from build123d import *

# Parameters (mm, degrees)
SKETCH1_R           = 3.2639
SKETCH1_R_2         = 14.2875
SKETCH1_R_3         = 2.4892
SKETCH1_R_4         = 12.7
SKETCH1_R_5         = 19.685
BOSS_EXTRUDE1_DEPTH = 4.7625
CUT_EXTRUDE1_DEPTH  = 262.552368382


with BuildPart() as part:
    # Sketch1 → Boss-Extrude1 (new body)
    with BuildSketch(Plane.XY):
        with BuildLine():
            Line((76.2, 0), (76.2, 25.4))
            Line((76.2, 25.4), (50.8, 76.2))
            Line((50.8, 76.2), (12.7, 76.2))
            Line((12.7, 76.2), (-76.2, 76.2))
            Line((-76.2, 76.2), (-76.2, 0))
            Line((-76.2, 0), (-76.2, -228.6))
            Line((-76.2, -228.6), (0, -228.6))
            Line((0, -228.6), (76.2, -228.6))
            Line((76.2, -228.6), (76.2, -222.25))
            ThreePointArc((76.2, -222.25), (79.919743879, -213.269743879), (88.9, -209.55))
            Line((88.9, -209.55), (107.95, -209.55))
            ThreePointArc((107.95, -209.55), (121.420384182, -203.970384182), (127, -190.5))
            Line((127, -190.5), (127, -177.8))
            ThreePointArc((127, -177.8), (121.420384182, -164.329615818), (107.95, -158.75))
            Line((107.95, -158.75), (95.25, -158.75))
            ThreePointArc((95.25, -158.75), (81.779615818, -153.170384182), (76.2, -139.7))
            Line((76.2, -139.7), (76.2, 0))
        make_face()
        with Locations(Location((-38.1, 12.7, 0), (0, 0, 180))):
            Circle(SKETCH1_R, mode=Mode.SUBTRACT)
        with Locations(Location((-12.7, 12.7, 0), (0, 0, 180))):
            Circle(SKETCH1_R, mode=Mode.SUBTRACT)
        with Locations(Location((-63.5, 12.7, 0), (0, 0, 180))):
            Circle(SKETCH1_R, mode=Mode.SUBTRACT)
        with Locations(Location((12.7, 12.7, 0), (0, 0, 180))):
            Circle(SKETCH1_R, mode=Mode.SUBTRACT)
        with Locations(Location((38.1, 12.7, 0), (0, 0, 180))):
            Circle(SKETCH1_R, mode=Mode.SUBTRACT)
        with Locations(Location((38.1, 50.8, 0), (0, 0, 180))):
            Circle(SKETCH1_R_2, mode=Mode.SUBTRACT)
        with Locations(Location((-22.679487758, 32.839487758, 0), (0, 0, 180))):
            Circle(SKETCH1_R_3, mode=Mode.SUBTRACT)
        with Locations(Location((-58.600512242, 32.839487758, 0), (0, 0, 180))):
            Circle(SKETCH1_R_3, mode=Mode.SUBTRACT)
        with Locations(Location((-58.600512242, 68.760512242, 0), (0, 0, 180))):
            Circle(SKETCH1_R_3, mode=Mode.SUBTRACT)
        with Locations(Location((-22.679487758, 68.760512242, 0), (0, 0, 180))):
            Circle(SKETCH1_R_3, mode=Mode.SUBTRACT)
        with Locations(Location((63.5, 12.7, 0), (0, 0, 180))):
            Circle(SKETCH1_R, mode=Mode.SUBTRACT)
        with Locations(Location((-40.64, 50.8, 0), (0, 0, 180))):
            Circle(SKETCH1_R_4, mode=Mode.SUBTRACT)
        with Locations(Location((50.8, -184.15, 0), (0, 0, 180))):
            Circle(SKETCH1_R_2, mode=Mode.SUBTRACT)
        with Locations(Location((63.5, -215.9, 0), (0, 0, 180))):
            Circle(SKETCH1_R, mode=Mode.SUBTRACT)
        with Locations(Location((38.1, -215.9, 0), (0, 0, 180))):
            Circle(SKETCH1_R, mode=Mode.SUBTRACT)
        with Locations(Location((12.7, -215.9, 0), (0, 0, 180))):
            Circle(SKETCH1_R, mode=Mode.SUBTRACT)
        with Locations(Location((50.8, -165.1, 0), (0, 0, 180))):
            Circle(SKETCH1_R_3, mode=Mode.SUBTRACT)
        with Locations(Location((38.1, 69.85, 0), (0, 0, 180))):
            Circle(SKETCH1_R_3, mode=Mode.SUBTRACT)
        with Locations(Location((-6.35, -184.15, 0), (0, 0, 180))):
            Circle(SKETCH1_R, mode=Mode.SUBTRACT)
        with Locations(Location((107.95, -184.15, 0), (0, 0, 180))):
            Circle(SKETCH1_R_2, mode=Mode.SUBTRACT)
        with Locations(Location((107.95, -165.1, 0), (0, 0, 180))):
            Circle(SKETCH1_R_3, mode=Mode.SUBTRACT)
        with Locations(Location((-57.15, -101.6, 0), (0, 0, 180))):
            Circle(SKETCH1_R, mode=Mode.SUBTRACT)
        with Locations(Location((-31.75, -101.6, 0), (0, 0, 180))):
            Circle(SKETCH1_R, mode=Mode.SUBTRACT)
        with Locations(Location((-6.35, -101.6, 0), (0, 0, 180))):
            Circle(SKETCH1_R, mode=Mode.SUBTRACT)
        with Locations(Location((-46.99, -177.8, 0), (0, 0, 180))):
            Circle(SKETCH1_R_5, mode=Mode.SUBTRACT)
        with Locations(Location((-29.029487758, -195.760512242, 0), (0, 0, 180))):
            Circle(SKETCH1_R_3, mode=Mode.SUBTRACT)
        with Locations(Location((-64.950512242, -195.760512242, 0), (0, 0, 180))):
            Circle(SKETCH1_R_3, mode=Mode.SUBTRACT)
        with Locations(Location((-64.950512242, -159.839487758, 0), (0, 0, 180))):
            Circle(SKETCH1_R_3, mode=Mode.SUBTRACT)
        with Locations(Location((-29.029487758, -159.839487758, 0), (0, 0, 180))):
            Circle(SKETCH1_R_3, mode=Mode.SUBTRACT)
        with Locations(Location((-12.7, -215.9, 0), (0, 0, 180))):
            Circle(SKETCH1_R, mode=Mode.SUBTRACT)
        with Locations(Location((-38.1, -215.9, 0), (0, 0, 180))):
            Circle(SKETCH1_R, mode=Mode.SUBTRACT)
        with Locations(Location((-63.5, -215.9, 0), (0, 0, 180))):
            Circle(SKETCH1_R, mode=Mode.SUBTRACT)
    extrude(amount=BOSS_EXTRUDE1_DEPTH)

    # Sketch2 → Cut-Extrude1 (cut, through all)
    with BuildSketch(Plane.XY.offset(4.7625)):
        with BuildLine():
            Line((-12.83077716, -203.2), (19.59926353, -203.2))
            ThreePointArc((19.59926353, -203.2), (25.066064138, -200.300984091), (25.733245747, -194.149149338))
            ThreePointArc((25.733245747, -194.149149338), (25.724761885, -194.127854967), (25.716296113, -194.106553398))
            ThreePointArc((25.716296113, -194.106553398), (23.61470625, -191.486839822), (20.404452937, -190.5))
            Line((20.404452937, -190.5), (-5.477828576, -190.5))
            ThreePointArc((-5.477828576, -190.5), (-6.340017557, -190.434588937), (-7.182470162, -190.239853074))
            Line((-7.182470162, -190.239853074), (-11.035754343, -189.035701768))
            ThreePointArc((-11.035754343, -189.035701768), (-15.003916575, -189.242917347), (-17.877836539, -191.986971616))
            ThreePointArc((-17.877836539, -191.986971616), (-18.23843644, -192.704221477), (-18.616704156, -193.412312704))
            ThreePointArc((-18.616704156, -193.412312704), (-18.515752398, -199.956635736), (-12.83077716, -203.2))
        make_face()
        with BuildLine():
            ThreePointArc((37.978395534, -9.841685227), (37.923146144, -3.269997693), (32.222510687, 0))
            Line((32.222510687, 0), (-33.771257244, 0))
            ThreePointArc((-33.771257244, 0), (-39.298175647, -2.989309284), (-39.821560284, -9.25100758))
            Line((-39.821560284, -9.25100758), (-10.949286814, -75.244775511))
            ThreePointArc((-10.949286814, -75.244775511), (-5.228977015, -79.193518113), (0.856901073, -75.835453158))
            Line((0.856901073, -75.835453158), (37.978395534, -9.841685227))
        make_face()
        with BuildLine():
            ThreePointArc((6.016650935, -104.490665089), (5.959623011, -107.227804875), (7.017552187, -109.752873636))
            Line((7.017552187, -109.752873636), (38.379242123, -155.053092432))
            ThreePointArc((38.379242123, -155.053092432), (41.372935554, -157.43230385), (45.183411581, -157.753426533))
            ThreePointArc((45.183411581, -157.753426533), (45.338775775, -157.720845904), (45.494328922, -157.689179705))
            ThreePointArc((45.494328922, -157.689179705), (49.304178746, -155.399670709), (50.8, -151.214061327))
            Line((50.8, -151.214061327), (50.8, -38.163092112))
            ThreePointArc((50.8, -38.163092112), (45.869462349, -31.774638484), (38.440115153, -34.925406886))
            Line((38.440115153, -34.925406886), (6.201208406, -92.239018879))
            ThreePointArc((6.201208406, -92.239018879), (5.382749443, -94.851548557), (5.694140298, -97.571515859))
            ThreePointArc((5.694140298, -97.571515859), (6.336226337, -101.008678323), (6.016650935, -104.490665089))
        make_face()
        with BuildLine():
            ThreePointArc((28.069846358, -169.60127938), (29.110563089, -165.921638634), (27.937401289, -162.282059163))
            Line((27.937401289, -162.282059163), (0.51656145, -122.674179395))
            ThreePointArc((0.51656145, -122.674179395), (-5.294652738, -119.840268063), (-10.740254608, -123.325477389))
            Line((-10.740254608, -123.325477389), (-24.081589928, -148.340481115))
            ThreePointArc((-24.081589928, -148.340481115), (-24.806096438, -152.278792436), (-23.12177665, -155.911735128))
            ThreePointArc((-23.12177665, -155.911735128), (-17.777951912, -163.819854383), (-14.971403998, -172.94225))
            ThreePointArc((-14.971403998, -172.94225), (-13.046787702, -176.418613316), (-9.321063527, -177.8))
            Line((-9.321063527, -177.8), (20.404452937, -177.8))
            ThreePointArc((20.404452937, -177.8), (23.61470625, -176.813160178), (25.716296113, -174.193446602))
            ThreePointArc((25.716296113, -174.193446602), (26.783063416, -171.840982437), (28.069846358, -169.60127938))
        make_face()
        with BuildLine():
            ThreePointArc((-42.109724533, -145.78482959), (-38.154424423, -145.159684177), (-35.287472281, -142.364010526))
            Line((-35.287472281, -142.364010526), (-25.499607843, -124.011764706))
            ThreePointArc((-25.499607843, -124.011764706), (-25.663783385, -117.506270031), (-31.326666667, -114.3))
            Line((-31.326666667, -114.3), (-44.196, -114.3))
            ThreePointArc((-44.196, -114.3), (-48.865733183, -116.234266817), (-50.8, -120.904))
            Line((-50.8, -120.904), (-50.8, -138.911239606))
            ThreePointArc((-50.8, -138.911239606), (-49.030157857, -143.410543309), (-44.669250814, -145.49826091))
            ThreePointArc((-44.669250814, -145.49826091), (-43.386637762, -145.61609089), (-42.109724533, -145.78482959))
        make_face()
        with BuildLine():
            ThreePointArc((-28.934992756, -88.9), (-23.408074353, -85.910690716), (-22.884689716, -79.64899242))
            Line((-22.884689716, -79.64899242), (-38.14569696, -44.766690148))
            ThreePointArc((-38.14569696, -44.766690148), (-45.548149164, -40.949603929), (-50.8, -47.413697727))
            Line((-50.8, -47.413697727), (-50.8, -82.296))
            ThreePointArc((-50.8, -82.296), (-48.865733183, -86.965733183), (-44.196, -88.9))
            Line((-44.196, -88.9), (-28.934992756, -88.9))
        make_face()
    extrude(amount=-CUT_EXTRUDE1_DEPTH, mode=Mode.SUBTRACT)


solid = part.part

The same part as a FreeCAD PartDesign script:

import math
import FreeCAD as App
import Part
import Sketcher
from FreeCAD import Vector
Q = App.Units.Quantity

doc = App.newDocument("Part")
params = doc.addObject("Spreadsheet::Sheet", "Params")
for row, (alias, value) in enumerate([
    ("sketch1_diameter", "1 in"),
    ("sketch1_diameter2", "1.55 in"),
    ("sketch1_width", "5 in"),
    ("sketch1_width2", "6 in"),
    ("sketch1_height", "12 in"),
    ("pad1_length", "0.1875 in"),
    ("sketch2_radius", "0.5 in"),
    ("sketch2_radius2", "0.26 in"),
    ("sketch2_radius3", "0.225 in"),
    ("sketch2_radius4", "1.2750001 in"),
    ("sketch2_radius5", "1.0625 in"),
], start=1):
    params.set(f"A{row}", alias)
    params.set(f"B{row}", "=" + value)
    params.setAlias(f"B{row}", alias)

body = doc.addObject("PartDesign::Body", "Body")

sketch1 = body.newObject("Sketcher::SketchObject", "Sketch")
sketch1.AttachmentSupport = (doc.getObject("XY_Plane"), [""])
sketch1.MapMode = "FlatFace"
sketch1.addGeometry([
    Part.LineSegment(Vector(76.2, 25.4, 0), Vector(50.8, 76.2, 0)),
    Part.LineSegment(Vector(50.8, 76.2, 0), Vector(-76.2, 76.2, 0)),
    Part.LineSegment(Vector(-76.2, 76.2, 0), Vector(-76.2, -228.6, 0)),
    Part.LineSegment(Vector(-76.2, -228.6, 0), Vector(76.2, -228.6, 0)),
    Part.LineSegment(Vector(76.2, -228.6, 0), Vector(76.2, -222.25, 0)),
    Part.ArcOfCircle(Part.Circle(Vector(88.9, -222.25, 0), Vector(0, 0, 1), 12.7), math.radians(90), math.radians(180)),
    Part.LineSegment(Vector(88.9, -209.55, 0), Vector(107.95, -209.55, 0)),
    Part.ArcOfCircle(Part.Circle(Vector(107.95, -190.5, 0), Vector(0, 0, 1), 19.05), math.radians(-90), math.radians(0)),
    Part.LineSegment(Vector(127, -190.5, 0), Vector(127, -177.8, 0)),
    Part.ArcOfCircle(Part.Circle(Vector(107.95, -177.8, 0), Vector(0, 0, 1), 19.05), math.radians(0), math.radians(90)),
    Part.LineSegment(Vector(107.95, -158.75, 0), Vector(95.25, -158.75, 0)),
    Part.ArcOfCircle(Part.Circle(Vector(95.25, -139.7, 0), Vector(0, 0, 1), 19.05), math.radians(180), math.radians(270)),
    Part.LineSegment(Vector(76.2, -139.7, 0), Vector(76.2, 25.4, 0)),
    Part.Circle(Vector(-63.5, -215.9, 0), Vector(0, 0, 1), 3.2639),
    Part.Circle(Vector(-64.950512, -195.760512, 0), Vector(0, 0, 1), 2.4892),
    Part.Circle(Vector(-38.1, -215.9, 0), Vector(0, 0, 1), 3.2639),
    Part.Circle(Vector(-29.029488, -195.760512, 0), Vector(0, 0, 1), 2.4892),
    Part.Circle(Vector(-46.99, -177.8, 0), Vector(0, 0, 1), 19.685),
    Part.Circle(Vector(-64.950512, -159.839488, 0), Vector(0, 0, 1), 2.4892),
    Part.Circle(Vector(-29.029488, -159.839488, 0), Vector(0, 0, 1), 2.4892),
    Part.Circle(Vector(-12.7, -215.9, 0), Vector(0, 0, 1), 3.2639),
    Part.Circle(Vector(-6.35, -184.15, 0), Vector(0, 0, 1), 3.2639),
    Part.Circle(Vector(12.7, -215.9, 0), Vector(0, 0, 1), 3.2639),
    Part.Circle(Vector(-57.15, -101.6, 0), Vector(0, 0, 1), 3.2639),
    Part.Circle(Vector(-31.75, -101.6, 0), Vector(0, 0, 1), 3.2639),
    Part.Circle(Vector(-6.35, -101.6, 0), Vector(0, 0, 1), 3.2639),
    Part.Circle(Vector(38.1, -215.9, 0), Vector(0, 0, 1), 3.2639),
    Part.Circle(Vector(50.8, -184.15, 0), Vector(0, 0, 1), 14.2875),
    Part.Circle(Vector(63.5, -215.9, 0), Vector(0, 0, 1), 3.2639),
    Part.Circle(Vector(50.8, -165.1, 0), Vector(0, 0, 1), 2.4892),
    Part.Circle(Vector(107.95, -184.15, 0), Vector(0, 0, 1), 14.2875),
    Part.Circle(Vector(107.95, -165.1, 0), Vector(0, 0, 1), 2.4892),
    Part.Circle(Vector(-63.5, 12.7, 0), Vector(0, 0, 1), 3.2639),
    Part.Circle(Vector(-58.600512, 32.839488, 0), Vector(0, 0, 1), 2.4892),
    Part.Circle(Vector(-38.1, 12.7, 0), Vector(0, 0, 1), 3.2639),
    Part.Circle(Vector(-22.679488, 32.839488, 0), Vector(0, 0, 1), 2.4892),
    Part.Circle(Vector(-58.600512, 68.760512, 0), Vector(0, 0, 1), 2.4892),
    Part.Circle(Vector(-40.64, 50.8, 0), Vector(0, 0, 1), 12.7),
    Part.Circle(Vector(-22.679488, 68.760512, 0), Vector(0, 0, 1), 2.4892),
    Part.Circle(Vector(-12.7, 12.7, 0), Vector(0, 0, 1), 3.2639),
    Part.Circle(Vector(12.7, 12.7, 0), Vector(0, 0, 1), 3.2639),
    Part.Circle(Vector(38.1, 12.7, 0), Vector(0, 0, 1), 3.2639),
    Part.Circle(Vector(63.5, 12.7, 0), Vector(0, 0, 1), 3.2639),
    Part.Circle(Vector(38.1, 50.8, 0), Vector(0, 0, 1), 14.2875),
    Part.Circle(Vector(38.1, 69.85, 0), Vector(0, 0, 1), 2.4892),
], False)
sketch1.addConstraint([
    Sketcher.Constraint("Coincident", 0, 2, 1, 1),
    Sketcher.Constraint("Coincident", 1, 2, 2, 1),
    Sketcher.Constraint("Coincident", 2, 2, 3, 1),
    Sketcher.Constraint("Coincident", 3, 2, 4, 1),
    Sketcher.Constraint("Tangent", 4, 2, 5, 2),
    Sketcher.Constraint("Tangent", 5, 1, 6, 1),
    Sketcher.Constraint("Tangent", 6, 2, 7, 1),
    Sketcher.Constraint("Tangent", 7, 2, 8, 1),
    Sketcher.Constraint("Tangent", 8, 2, 9, 1),
    Sketcher.Constraint("Tangent", 9, 2, 10, 1),
    Sketcher.Constraint("Tangent", 10, 2, 11, 2),
    Sketcher.Constraint("Tangent", 11, 1, 12, 1),
    Sketcher.Constraint("Coincident", 12, 2, 0, 1),
    Sketcher.Constraint("Horizontal", 1),
    Sketcher.Constraint("Vertical", 2),
    Sketcher.Constraint("Horizontal", 3),
    Sketcher.Constraint("Vertical", 4),
    Sketcher.Constraint("Horizontal", 6),
    Sketcher.Constraint("Vertical", 8),
    Sketcher.Constraint("Horizontal", 10),
    Sketcher.Constraint("Vertical", 12),
    Sketcher.Constraint("Equal", 7, 9),
    Sketcher.Constraint("Equal", 9, 11),
    Sketcher.Constraint("Equal", 13, 15),
    Sketcher.Constraint("Equal", 14, 16),
    Sketcher.Constraint("Equal", 16, 18),
    Sketcher.Constraint("Equal", 18, 19),
    Sketcher.Constraint("Equal", 15, 20),
    Sketcher.Constraint("Equal", 20, 21),
    Sketcher.Constraint("Equal", 21, 22),
    Sketcher.Constraint("Equal", 22, 23),
    Sketcher.Constraint("Equal", 23, 24),
    Sketcher.Constraint("Equal", 24, 25),
    Sketcher.Constraint("Equal", 25, 26),
    Sketcher.Constraint("Equal", 26, 28),
    Sketcher.Constraint("Equal", 19, 29),
    Sketcher.Constraint("Equal", 27, 30),
    Sketcher.Constraint("Equal", 29, 31),
    Sketcher.Constraint("Equal", 28, 32),
    Sketcher.Constraint("Equal", 31, 33),
    Sketcher.Constraint("Equal", 32, 34),
    Sketcher.Constraint("Equal", 33, 35),
    Sketcher.Constraint("Equal", 35, 36),
    Sketcher.Constraint("Equal", 5, 37),
    Sketcher.Constraint("Equal", 36, 38),
    Sketcher.Constraint("Equal", 34, 39),
    Sketcher.Constraint("Equal", 39, 40),
    Sketcher.Constraint("Equal", 40, 41),
    Sketcher.Constraint("Equal", 41, 42),
    Sketcher.Constraint("Equal", 30, 43),
    Sketcher.Constraint("Equal", 38, 44),
    Sketcher.Constraint("Symmetric", 20, 3, 22, 3, -2),
    Sketcher.Constraint("Symmetric", 15, 3, 26, 3, -2),
    Sketcher.Constraint("Symmetric", 13, 3, 28, 3, -2),
    Sketcher.Constraint("Symmetric", 39, 3, 40, 3, -2),
    Sketcher.Constraint("Symmetric", 34, 3, 41, 3, -2),
    Sketcher.Constraint("Symmetric", 32, 3, 42, 3, -2),
    Sketcher.Constraint("Horizontal", 13, 3, 15, 3),
    Sketcher.Constraint("Horizontal", 14, 3, 16, 3),
    Sketcher.Constraint("Horizontal", 9, 3, 17, 3),
    Sketcher.Constraint("Horizontal", 18, 3, 19, 3),
    Sketcher.Constraint("Horizontal", 15, 3, 20, 3),
    Sketcher.Constraint("Horizontal", 23, 3, 24, 3),
    Sketcher.Constraint("Horizontal", 24, 3, 25, 3),
    Sketcher.Constraint("Horizontal", 21, 3, 27, 3),
    Sketcher.Constraint("Horizontal", 27, 3, 30, 3),
    Sketcher.Constraint("Horizontal", 29, 3, 31, 3),
    Sketcher.Constraint("Horizontal", 32, 3, 34, 3),
    Sketcher.Constraint("Horizontal", 33, 3, 35, 3),
    Sketcher.Constraint("Horizontal", 36, 3, 38, 3),
    Sketcher.Constraint("Horizontal", 34, 3, 39, 3),
    Sketcher.Constraint("Horizontal", 37, 3, 43, 3),
    Sketcher.Constraint("Vertical", 14, 3, 18, 3),
    Sketcher.Constraint("Vertical", 16, 3, 19, 3),
    Sketcher.Constraint("Vertical", 21, 3, 25, 3),
    Sketcher.Constraint("Vertical", 27, 3, 29, 3),
    Sketcher.Constraint("Vertical", 9, 3, 30, 3),
    Sketcher.Constraint("Vertical", 30, 3, 31, 3),
    Sketcher.Constraint("Vertical", 13, 3, 32, 3),
    Sketcher.Constraint("Vertical", 15, 3, 34, 3),
    Sketcher.Constraint("Vertical", 33, 3, 36, 3),
    Sketcher.Constraint("Vertical", 35, 3, 38, 3),
    Sketcher.Constraint("Vertical", 20, 3, 39, 3),
    Sketcher.Constraint("Vertical", 41, 3, 43, 3),
    Sketcher.Constraint("Vertical", 43, 3, 44, 3),
    Sketcher.Constraint("Vertical", 29, 3, 0, 2),
    Sketcher.Constraint("Vertical", 4, 2, 11, 1),
    Sketcher.Constraint("Equal", 10, 8),
    Sketcher.Constraint("Diameter", 37, Q("1 in")),
    Sketcher.Constraint("Diameter", 17, Q("1.55 in")),
    Sketcher.Constraint("DistanceX", 1, 2, 1, 1, Q("5 in")),
    Sketcher.Constraint("DistanceX", 3, 1, 3, 2, Q("6 in")),
    Sketcher.Constraint("DistanceY", 2, 2, 2, 1, Q("12 in")),
    Sketcher.Constraint("Radius", 7, Q("0.75 in")),
    Sketcher.Constraint("Diameter", 13, Q("0.257 in")),
    Sketcher.Constraint("Diameter", 14, Q("0.196 in")),
    Sketcher.Constraint("Diameter", 27, Q("1.125 in")),
    Sketcher.Constraint("DistanceX", 10, 2, 10, 1, Q("0.5 in")),
    Sketcher.Constraint("DistanceY", 12, 1, 12, 2, Q("6.5 in")),
    Sketcher.Constraint("DistanceY", 9, 3, -1, 1, Q("7 in")),
    Sketcher.Constraint("DistanceY", 23, 3, -1, 1, Q("4 in")),
    Sketcher.Constraint("DistanceX", -1, 1, 27, 3, Q("2 in")),
    Sketcher.Constraint("DistanceY", -1, 1, 37, 3, Q("2 in")),
    Sketcher.Constraint("DistanceY", -1, 1, 0, 2, Q("3 in")),
    Sketcher.Constraint("DistanceX", 13, 3, 5, 3, Q("6 in")),
    Sketcher.Constraint("DistanceY", 13, 3, 7, 3, Q("1 in")),
    Sketcher.Constraint("DistanceX", 13, 3, 15, 3, Q("1 in")),
    Sketcher.Constraint("DistanceX", 15, 3, 20, 3, Q("1 in")),
    Sketcher.Constraint("DistanceX", 23, 3, 21, 3, Q("2 in")),
    Sketcher.Constraint("DistanceX", 23, 3, 24, 3, Q("1 in")),
    Sketcher.Constraint("DistanceY", 29, 3, 11, 3, Q("1 in")),
    Sketcher.Constraint("DistanceY", 6, 2, 30, 3, Q("1 in")),
    Sketcher.Constraint("DistanceY", -1, 1, 32, 3, Q("0.5 in")),
    Sketcher.Constraint("DistanceX", 37, 3, -1, 1, Q("1.6 in")),
    Sketcher.Constraint("DistanceX", 17, 3, 21, 3, Q("1.6 in")),
    Sketcher.Constraint("DistanceX", 17, 3, -1, 1, Q("1.85 in")),
    Sketcher.Constraint("DistanceY", -1, 1, 44, 3, Q("2.75 in")),
    Sketcher.Constraint("DistanceX", 18, 3, 33, 3, Q("0.25 in")),
    Sketcher.Constraint("DistanceX", 14, 3, -1, 1, 64.950512),
    Sketcher.Constraint("DistanceY", 14, 3, -1, 1, 195.760512),
    Sketcher.Constraint("DistanceX", 16, 3, -1, 1, 29.029488),
    Sketcher.Constraint("DistanceY", 18, 3, -1, 1, 159.839488),
    Sketcher.Constraint("DistanceY", -1, 1, 33, 3, 32.839488),
    Sketcher.Constraint("DistanceX", 35, 3, -1, 1, 22.679488),
    Sketcher.Constraint("DistanceY", -1, 1, 36, 3, 68.760512),
])
sketch1.setExpression("Constraints[88]", "Params.sketch1_diameter")
sketch1.setExpression("Constraints[89]", "Params.sketch1_diameter2")
sketch1.setExpression("Constraints[90]", "Params.sketch1_width")
sketch1.setExpression("Constraints[91]", "Params.sketch1_width2")
sketch1.setExpression("Constraints[92]", "Params.sketch1_height")
pad1 = body.newObject("PartDesign::Pad", "Pad")
pad1.Profile = sketch1
pad1.setExpression("Length", "Params.pad1_length")

sketch2 = body.newObject("Sketcher::SketchObject", "Sketch001")
sketch2.AttachmentSupport = (doc.getObject("XY_Plane"), [""])
sketch2.MapMode = "FlatFace"
sketch2.AttachmentOffset = App.Placement(Vector(0, 0, 0.1875 * 25.4), App.Rotation())
sketch2.addGeometry([
    Part.LineSegment(Vector(-12.830777, -203.2, 0), Vector(19.599264, -203.2, 0)),
    Part.ArcOfCircle(Part.Circle(Vector(19.599264, -196.596, 0), Vector(0, 0, 1), 6.604), math.radians(-90), math.radians(21.747098)),
    Part.ArcOfCircle(Part.Circle(Vector(50.799737, -184.150105, 0), Vector(0, 0, 1), 26.987217), math.radians(-158.350232), math.radians(-158.252901)),
    Part.ArcOfCircle(Part.Circle(Vector(20.404453, -196.215, 0), Vector(0, 0, 1), 5.715), math.radians(21.649768), math.radians(90)),
    Part.LineSegment(Vector(20.404453, -190.5, 0), Vector(-5.477829, -190.5, 0)),
    Part.ArcOfCircle(Part.Circle(Vector(-5.477829, -184.785, 0), Vector(0, 0, 1), 5.715), math.radians(-107.354025), math.radians(-90)),
    Part.LineSegment(Vector(-7.18247, -190.239853, 0), Vector(-11.035754, -189.035702, 0)),
    Part.ArcOfCircle(Part.Circle(Vector(-12.740396, -194.490555, 0), Vector(0, 0, 1), 5.715), math.radians(72.645975), math.radians(154.019049)),
    Part.ArcOfCircle(Part.Circle(Vector(-46.990002, -177.799999, 0), Vector(0, 0, 1), 32.385002), math.radians(-28.821645), math.radians(-25.980951)),
    Part.ArcOfCircle(Part.Circle(Vector(-12.830777, -196.596, 0), Vector(0, 0, 1), 6.604), math.radians(151.178355), math.radians(270)),
    Part.ArcOfCircle(Part.Circle(Vector(32.222511, -6.604, 0), Vector(0, 0, 1), 6.604), math.radians(-29.357754), math.radians(90)),
    Part.LineSegment(Vector(32.222511, 0, 0), Vector(-33.771257, 0, 0)),
    Part.ArcOfCircle(Part.Circle(Vector(-33.771257, -6.604, 0), Vector(0, 0, 1), 6.604), math.radians(90), math.radians(203.629378)),
    Part.LineSegment(Vector(-39.82156, -9.251008, 0), Vector(-10.949287, -75.244776, 0)),
    Part.ArcOfCircle(Part.Circle(Vector(-4.898984, -72.597768, 0), Vector(0, 0, 1), 6.604), math.radians(-156.370622), math.radians(-29.357754)),
    Part.LineSegment(Vector(0.856901, -75.835453, 0), Vector(37.978396, -9.841685, 0)),
    Part.ArcOfCircle(Part.Circle(Vector(12.447309, -105.993811, 0), Vector(0, 0, 1), 6.604), math.radians(166.843513), math.radians(214.695154)),
    Part.LineSegment(Vector(7.017552, -109.752874, 0), Vector(38.379242, -155.053092, 0)),
    Part.ArcOfCircle(Part.Circle(Vector(43.808999, -151.29403, 0), Vector(0, 0, 1), 6.604), math.radians(-145.304846), math.radians(-77.987907)),
    Part.ArcOfCircle(Part.Circle(Vector(50.800001, -184.150004, 0), Vector(0, 0, 1), 26.987504), math.radians(101.338052), math.radians(102.012093)),
    Part.ArcOfCircle(Part.Circle(Vector(44.196, -151.214061, 0), Vector(0, 0, 1), 6.604), math.radians(-78.661948), math.radians(0)),
    Part.LineSegment(Vector(50.8, -151.214061, 0), Vector(50.8, -38.163092, 0)),
    Part.ArcOfCircle(Part.Circle(Vector(44.196, -38.163092, 0), Vector(0, 0, 1), 6.604), math.radians(0), math.radians(150.642246)),
    Part.LineSegment(Vector(38.440115, -34.925407, 0), Vector(6.201208, -92.239019, 0)),
    Part.ArcOfCircle(Part.Circle(Vector(11.957093, -95.476704, 0), Vector(0, 0, 1), 6.604), math.radians(150.642246), math.radians(198.493887)),
    Part.ArcOfCircle(Part.Circle(Vector(-6.35, -101.6, 0), Vector(0, 0, 1), 12.7), math.radians(-13.156487), math.radians(18.493887)),
    Part.ArcOfCircle(Part.Circle(Vector(22.507644, -166.041122, 0), Vector(0, 0, 1), 6.604), math.radians(-32.621786), math.radians(34.695154)),
    Part.LineSegment(Vector(27.937401, -162.282059, 0), Vector(0.516561, -122.674179, 0)),
    Part.ArcOfCircle(Part.Circle(Vector(-4.913196, -126.433242, 0), Vector(0, 0, 1), 6.604), math.radians(34.695154), math.radians(151.927513)),
    Part.LineSegment(Vector(-10.740255, -123.325477, 0), Vector(-24.08159, -148.340481, 0)),
    Part.ArcOfCircle(Part.Circle(Vector(-18.254531, -151.448246, 0), Vector(0, 0, 1), 6.604), math.radians(151.927513), math.radians(222.522263)),
    Part.ArcOfCircle(Part.Circle(Vector(-46.99, -177.8, 0), Vector(0, 0, 1), 32.385), math.radians(8.626927), math.radians(42.522263)),
    Part.ArcOfCircle(Part.Circle(Vector(-9.321064, -172.085, 0), Vector(0, 0, 1), 5.715), math.radians(-171.373073), math.radians(-90)),
    Part.LineSegment(Vector(-9.321064, -177.8, 0), Vector(20.404453, -177.8, 0)),
    Part.ArcOfCircle(Part.Circle(Vector(20.404453, -172.085, 0), Vector(0, 0, 1), 5.715), math.radians(-90), math.radians(-21.649768)),
    Part.ArcOfCircle(Part.Circle(Vector(50.8, -184.15, 0), Vector(0, 0, 1), 26.9875), math.radians(147.378214), math.radians(158.350232)),
    Part.ArcOfCircle(Part.Circle(Vector(-41.114531, -139.256246, 0), Vector(0, 0, 1), 6.604), math.radians(-98.667237), math.radians(-28.072487)),
    Part.LineSegment(Vector(-35.287472, -142.364011, 0), Vector(-25.499608, -124.011765, 0)),
    Part.ArcOfCircle(Part.Circle(Vector(-31.326667, -120.904, 0), Vector(0, 0, 1), 6.604), math.radians(-28.072487), math.radians(90)),
    Part.LineSegment(Vector(-31.326667, -114.3, 0), Vector(-44.196, -114.3, 0)),
    Part.ArcOfCircle(Part.Circle(Vector(-44.196, -120.904, 0), Vector(0, 0, 1), 6.604), math.radians(90), math.radians(180)),
    Part.LineSegment(Vector(-50.8, -120.904, 0), Vector(-50.8, -138.91124, 0)),
    Part.ArcOfCircle(Part.Circle(Vector(-44.196, -138.91124, 0), Vector(0, 0, 1), 6.604), math.radians(180), math.radians(265.890591)),
    Part.ArcOfCircle(Part.Circle(Vector(-46.99, -177.8, 0), Vector(0, 0, 1), 32.385), math.radians(81.332763), math.radians(85.890591)),
    Part.ArcOfCircle(Part.Circle(Vector(-28.934993, -82.296, 0), Vector(0, 0, 1), 6.604), math.radians(-90), math.radians(23.629378)),
    Part.LineSegment(Vector(-22.88469, -79.648992, 0), Vector(-38.145697, -44.76669, 0)),
    Part.ArcOfCircle(Part.Circle(Vector(-44.196, -47.413698, 0), Vector(0, 0, 1), 6.604), math.radians(23.629378), math.radians(180)),
    Part.LineSegment(Vector(-50.8, -47.413698, 0), Vector(-50.8, -82.296, 0)),
    Part.ArcOfCircle(Part.Circle(Vector(-44.196, -82.296, 0), Vector(0, 0, 1), 6.604), math.radians(180), math.radians(270)),
    Part.LineSegment(Vector(-44.196, -88.9, 0), Vector(-28.934993, -88.9, 0)),
], False)
sketch2.addConstraint([
    Sketcher.Constraint("Tangent", 0, 2, 1, 1),
    Sketcher.Constraint("Tangent", 1, 2, 2, 2),
    Sketcher.Constraint("Tangent", 2, 1, 3, 1),
    Sketcher.Constraint("Tangent", 3, 2, 4, 1),
    Sketcher.Constraint("Tangent", 4, 2, 5, 2),
    Sketcher.Constraint("Tangent", 5, 1, 6, 1),
    Sketcher.Constraint("Tangent", 6, 2, 7, 1),
    Sketcher.Constraint("Tangent", 7, 2, 8, 2),
    Sketcher.Constraint("Tangent", 8, 1, 9, 1),
    Sketcher.Constraint("Tangent", 9, 2, 0, 1),
    Sketcher.Constraint("Tangent", 10, 2, 11, 1),
    Sketcher.Constraint("Tangent", 11, 2, 12, 1),
    Sketcher.Constraint("Tangent", 12, 2, 13, 1),
    Sketcher.Constraint("Tangent", 13, 2, 14, 1),
    Sketcher.Constraint("Tangent", 14, 2, 15, 1),
    Sketcher.Constraint("Tangent", 15, 2, 10, 1),
    Sketcher.Constraint("Tangent", 16, 2, 17, 1),
    Sketcher.Constraint("Tangent", 17, 2, 18, 1),
    Sketcher.Constraint("Tangent", 18, 2, 19, 2),
    Sketcher.Constraint("Tangent", 19, 1, 20, 1),
    Sketcher.Constraint("Tangent", 20, 2, 21, 1),
    Sketcher.Constraint("Tangent", 21, 2, 22, 1),
    Sketcher.Constraint("Tangent", 22, 2, 23, 1),
    Sketcher.Constraint("Tangent", 23, 2, 24, 1),
    Sketcher.Constraint("Tangent", 24, 2, 25, 2),
    Sketcher.Constraint("Tangent", 25, 1, 16, 1),
    Sketcher.Constraint("Tangent", 26, 2, 27, 1),
    Sketcher.Constraint("Tangent", 27, 2, 28, 1),
    Sketcher.Constraint("Tangent", 28, 2, 29, 1),
    Sketcher.Constraint("Tangent", 29, 2, 30, 1),
    Sketcher.Constraint("Tangent", 30, 2, 31, 2),
    Sketcher.Constraint("Tangent", 31, 1, 32, 1),
    Sketcher.Constraint("Tangent", 32, 2, 33, 1),
    Sketcher.Constraint("Tangent", 33, 2, 34, 1),
    Sketcher.Constraint("Tangent", 34, 2, 35, 2),
    Sketcher.Constraint("Tangent", 35, 1, 26, 1),
    Sketcher.Constraint("Tangent", 36, 2, 37, 1),
    Sketcher.Constraint("Tangent", 37, 2, 38, 1),
    Sketcher.Constraint("Tangent", 38, 2, 39, 1),
    Sketcher.Constraint("Tangent", 39, 2, 40, 1),
    Sketcher.Constraint("Tangent", 40, 2, 41, 1),
    Sketcher.Constraint("Tangent", 41, 2, 42, 1),
    Sketcher.Constraint("Tangent", 42, 2, 43, 2),
    Sketcher.Constraint("Tangent", 43, 1, 36, 1),
    Sketcher.Constraint("Tangent", 44, 2, 45, 1),
    Sketcher.Constraint("Tangent", 45, 2, 46, 1),
    Sketcher.Constraint("Tangent", 46, 2, 47, 1),
    Sketcher.Constraint("Tangent", 47, 2, 48, 1),
    Sketcher.Constraint("Tangent", 48, 2, 49, 1),
    Sketcher.Constraint("Tangent", 49, 2, 44, 1),
    Sketcher.Constraint("Horizontal", 0),
    Sketcher.Constraint("Horizontal", 4),
    Sketcher.Constraint("Horizontal", 11),
    Sketcher.Constraint("Vertical", 21),
    Sketcher.Constraint("Horizontal", 33),
    Sketcher.Constraint("Horizontal", 39),
    Sketcher.Constraint("Vertical", 41),
    Sketcher.Constraint("Vertical", 47),
    Sketcher.Constraint("Horizontal", 49),
    Sketcher.Constraint("Coincident", 31, 3, 8, 3),
    Sketcher.Constraint("Coincident", 35, 3, 19, 3),
    Sketcher.Constraint("Coincident", 43, 3, 8, 3),
    Sketcher.Constraint("Equal", 3, 5),
    Sketcher.Constraint("Equal", 5, 7),
    Sketcher.Constraint("Equal", 1, 9),
    Sketcher.Constraint("Equal", 9, 10),
    Sketcher.Constraint("Equal", 10, 12),
    Sketcher.Constraint("Equal", 12, 14),
    Sketcher.Constraint("Equal", 14, 16),
    Sketcher.Constraint("Equal", 16, 18),
    Sketcher.Constraint("Equal", 18, 20),
    Sketcher.Constraint("Equal", 20, 22),
    Sketcher.Constraint("Equal", 22, 24),
    Sketcher.Constraint("Equal", 24, 26),
    Sketcher.Constraint("Equal", 26, 28),
    Sketcher.Constraint("Equal", 28, 30),
    Sketcher.Constraint("Equal", 8, 31),
    Sketcher.Constraint("Equal", 7, 32),
    Sketcher.Constraint("Equal", 32, 34),
    Sketcher.Constraint("Equal", 30, 36),
    Sketcher.Constraint("Equal", 36, 38),
    Sketcher.Constraint("Equal", 38, 40),
    Sketcher.Constraint("Equal", 40, 42),
    Sketcher.Constraint("Equal", 31, 43),
    Sketcher.Constraint("Equal", 42, 44),
    Sketcher.Constraint("Equal", 44, 46),
    Sketcher.Constraint("Equal", 46, 48),
    Sketcher.Constraint("PointOnObject", 10, 2, -1),
    Sketcher.Constraint("Parallel", 15, 23),
    Sketcher.Constraint("Parallel", 17, 27),
    Sketcher.Constraint("Parallel", 29, 37),
    Sketcher.Constraint("Parallel", 13, 45),
    Sketcher.Constraint("Horizontal", 43, 3, 32, 2),
    Sketcher.Constraint("Vertical", 3, 3, 34, 3),
    Sketcher.Constraint("Vertical", 42, 3, 46, 3),
    Sketcher.Constraint("Vertical", 35, 3, 20, 2),
    Sketcher.Constraint("Vertical", 2, 1, 34, 2),
    Sketcher.Constraint("Radius", 25, Q("0.5 in")),
    Sketcher.Constraint("Radius", 1, Q("0.26 in")),
    Sketcher.Constraint("DistanceY", 8, 3, -1, 1, Q("7 in")),
    Sketcher.Constraint("DistanceX", -1, 1, 19, 3, Q("2 in")),
    Sketcher.Constraint("DistanceY", 25, 3, -1, 1, Q("4 in")),
    Sketcher.Constraint("DistanceY", 0, 2, -1, 1, Q("8 in")),
    Sketcher.Constraint("DistanceX", 40, 2, -1, 1, Q("2 in")),
    Sketcher.Constraint("Radius", 3, Q("0.225 in")),
    Sketcher.Constraint("Radius", 8, Q("1.2750001 in")),
    Sketcher.Constraint("Radius", 35, Q("1.0625 in")),
    Sketcher.Constraint("DistanceY", 3, 2, -1, 1, Q("7.5 in")),
    Sketcher.Constraint("DistanceY", 38, 2, -1, 1, Q("4.5 in")),
    Sketcher.Constraint("DistanceY", 48, 2, -1, 1, Q("3.5 in")),
    Sketcher.Constraint("Radius", 19, Q("1.0625002 in")),
    Sketcher.Constraint("DistanceX", 8, 3, -1, 1, Q("1.8500001 in")),
    Sketcher.Constraint("DistanceY", 19, 3, -1, 1, Q("7.2500002 in")),
    Sketcher.Constraint("DistanceX", 25, 3, -1, 1, Q("0.25 in")),
    Sketcher.Constraint("Radius", 2, 26.987217),
    Sketcher.Constraint("DistanceX", 4, 2, 4, 1, 25.882282),
    Sketcher.Constraint("DistanceY", 21, 1, 21, 2, 113.050969),
    Sketcher.Constraint("DistanceX", -1, 1, 18, 3, 43.808999),
    Sketcher.Constraint("DistanceY", 6, 2, -1, 1, 189.035702),
    Sketcher.Constraint("DistanceX", -1, 1, 14, 2, 0.856901),
    Sketcher.Constraint("DistanceX", -1, 1, 26, 2, 27.937401),
    Sketcher.Constraint("Distance", 23, 65.758629),
    Sketcher.Constraint("Distance", 37, 20.799212),
    Sketcher.Constraint("DistanceX", 11, 2, 11, 1, 65.993768),
    Sketcher.Constraint("DistanceX", 39, 2, 39, 1, 12.869333),
    Sketcher.Constraint("DistanceX", 49, 1, 49, 2, 15.261007),
    Sketcher.Constraint("DistanceY", 47, 2, 47, 1, 34.882302),
    Sketcher.Constraint("DistanceX", -1, 1, 16, 3, 12.447309),
    Sketcher.Constraint("DistanceX", 30, 3, -1, 1, 18.254531),
])
sketch2.setExpression("Constraints[97]", "Params.sketch2_radius")
sketch2.setExpression("Constraints[98]", "Params.sketch2_radius2")
sketch2.setExpression("Constraints[104]", "Params.sketch2_radius3")
sketch2.setExpression("Constraints[105]", "Params.sketch2_radius4")
sketch2.setExpression("Constraints[106]", "Params.sketch2_radius5")
pocket1 = body.newObject("PartDesign::Pocket", "Pocket")
pocket1.Profile = sketch2
pocket1.Type = "ThroughAll"

doc.recompute()
